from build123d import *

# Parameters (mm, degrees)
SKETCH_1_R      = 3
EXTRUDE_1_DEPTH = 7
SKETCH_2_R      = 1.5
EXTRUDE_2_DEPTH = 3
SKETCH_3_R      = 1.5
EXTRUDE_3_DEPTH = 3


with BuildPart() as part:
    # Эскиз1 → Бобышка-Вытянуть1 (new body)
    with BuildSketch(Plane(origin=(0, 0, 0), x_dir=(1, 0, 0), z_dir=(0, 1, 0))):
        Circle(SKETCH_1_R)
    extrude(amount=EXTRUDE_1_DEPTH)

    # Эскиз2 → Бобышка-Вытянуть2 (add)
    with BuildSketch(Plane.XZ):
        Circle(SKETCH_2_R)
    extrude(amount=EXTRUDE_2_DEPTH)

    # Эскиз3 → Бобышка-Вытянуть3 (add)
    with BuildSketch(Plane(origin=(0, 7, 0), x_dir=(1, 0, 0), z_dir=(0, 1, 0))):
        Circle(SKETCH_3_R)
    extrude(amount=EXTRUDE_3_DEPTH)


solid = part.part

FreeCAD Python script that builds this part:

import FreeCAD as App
import Part
import Sketcher

doc = App.newDocument("Part")
body = doc.addObject("PartDesign::Body", "Body")

# Sketch on XZ plane
sketch1 = doc.addObject("Sketcher::SketchObject", "Sketch")
body.addObject(sketch1)
sketch1.AttachmentSupport = (doc.XZ_Plane, [""])
sketch1.MapMode = "FlatFace"
sketch1.addGeometry(Part.Circle(App.Vector(0, 0, 0), App.Vector(0, 0, 1), 3), False)
sketch1.addConstraint([
    Sketcher.Constraint("Coincident", 0, 3, -1, 1),
    Sketcher.Constraint("Diameter", 0, 6.0),
])
pad1 = doc.addObject("PartDesign::Pad", "Pad")
body.addObject(pad1)
pad1.Profile = sketch1
pad1.Length = 7
pad1.Reversed = True

# Sketch on XZ plane
sketch2 = doc.addObject("Sketcher::SketchObject", "Sketch001")
body.addObject(sketch2)
sketch2.AttachmentSupport = (doc.XZ_Plane, [""])
sketch2.MapMode = "FlatFace"
sketch2.addGeometry(Part.Circle(App.Vector(0, 0, 0), App.Vector(0, 0, 1), 1.5), False)
sketch2.addConstraint([
    Sketcher.Constraint("Coincident", 0, 3, -1, 1),
    Sketcher.Constraint("Diameter", 0, 3.0),
])
pad2 = doc.addObject("PartDesign::Pad", "Pad001")
body.addObject(pad2)
pad2.Profile = sketch2
pad2.Length = 3

# Sketch on XZ plane
sketch3 = doc.addObject("Sketcher::SketchObject", "Sketch002")
body.addObject(sketch3)
sketch3.AttachmentSupport = (doc.XZ_Plane, [""])
sketch3.MapMode = "FlatFace"
sketch3.AttachmentOffset = App.Placement(App.Vector(0, 0, -7), App.Rotation())
sketch3.addGeometry(Part.Circle(App.Vector(0, 0, 0), App.Vector(0, 0, 1), 1.5), False)
sketch3.addConstraint([
    Sketcher.Constraint("Coincident", 0, 3, -1, 1),
    Sketcher.Constraint("Diameter", 0, 3.0),
])
pad3 = doc.addObject("PartDesign::Pad", "Pad002")
body.addObject(pad3)
pad3.Profile = sketch3
pad3.Length = 3
pad3.Reversed = True

doc.recompute()
